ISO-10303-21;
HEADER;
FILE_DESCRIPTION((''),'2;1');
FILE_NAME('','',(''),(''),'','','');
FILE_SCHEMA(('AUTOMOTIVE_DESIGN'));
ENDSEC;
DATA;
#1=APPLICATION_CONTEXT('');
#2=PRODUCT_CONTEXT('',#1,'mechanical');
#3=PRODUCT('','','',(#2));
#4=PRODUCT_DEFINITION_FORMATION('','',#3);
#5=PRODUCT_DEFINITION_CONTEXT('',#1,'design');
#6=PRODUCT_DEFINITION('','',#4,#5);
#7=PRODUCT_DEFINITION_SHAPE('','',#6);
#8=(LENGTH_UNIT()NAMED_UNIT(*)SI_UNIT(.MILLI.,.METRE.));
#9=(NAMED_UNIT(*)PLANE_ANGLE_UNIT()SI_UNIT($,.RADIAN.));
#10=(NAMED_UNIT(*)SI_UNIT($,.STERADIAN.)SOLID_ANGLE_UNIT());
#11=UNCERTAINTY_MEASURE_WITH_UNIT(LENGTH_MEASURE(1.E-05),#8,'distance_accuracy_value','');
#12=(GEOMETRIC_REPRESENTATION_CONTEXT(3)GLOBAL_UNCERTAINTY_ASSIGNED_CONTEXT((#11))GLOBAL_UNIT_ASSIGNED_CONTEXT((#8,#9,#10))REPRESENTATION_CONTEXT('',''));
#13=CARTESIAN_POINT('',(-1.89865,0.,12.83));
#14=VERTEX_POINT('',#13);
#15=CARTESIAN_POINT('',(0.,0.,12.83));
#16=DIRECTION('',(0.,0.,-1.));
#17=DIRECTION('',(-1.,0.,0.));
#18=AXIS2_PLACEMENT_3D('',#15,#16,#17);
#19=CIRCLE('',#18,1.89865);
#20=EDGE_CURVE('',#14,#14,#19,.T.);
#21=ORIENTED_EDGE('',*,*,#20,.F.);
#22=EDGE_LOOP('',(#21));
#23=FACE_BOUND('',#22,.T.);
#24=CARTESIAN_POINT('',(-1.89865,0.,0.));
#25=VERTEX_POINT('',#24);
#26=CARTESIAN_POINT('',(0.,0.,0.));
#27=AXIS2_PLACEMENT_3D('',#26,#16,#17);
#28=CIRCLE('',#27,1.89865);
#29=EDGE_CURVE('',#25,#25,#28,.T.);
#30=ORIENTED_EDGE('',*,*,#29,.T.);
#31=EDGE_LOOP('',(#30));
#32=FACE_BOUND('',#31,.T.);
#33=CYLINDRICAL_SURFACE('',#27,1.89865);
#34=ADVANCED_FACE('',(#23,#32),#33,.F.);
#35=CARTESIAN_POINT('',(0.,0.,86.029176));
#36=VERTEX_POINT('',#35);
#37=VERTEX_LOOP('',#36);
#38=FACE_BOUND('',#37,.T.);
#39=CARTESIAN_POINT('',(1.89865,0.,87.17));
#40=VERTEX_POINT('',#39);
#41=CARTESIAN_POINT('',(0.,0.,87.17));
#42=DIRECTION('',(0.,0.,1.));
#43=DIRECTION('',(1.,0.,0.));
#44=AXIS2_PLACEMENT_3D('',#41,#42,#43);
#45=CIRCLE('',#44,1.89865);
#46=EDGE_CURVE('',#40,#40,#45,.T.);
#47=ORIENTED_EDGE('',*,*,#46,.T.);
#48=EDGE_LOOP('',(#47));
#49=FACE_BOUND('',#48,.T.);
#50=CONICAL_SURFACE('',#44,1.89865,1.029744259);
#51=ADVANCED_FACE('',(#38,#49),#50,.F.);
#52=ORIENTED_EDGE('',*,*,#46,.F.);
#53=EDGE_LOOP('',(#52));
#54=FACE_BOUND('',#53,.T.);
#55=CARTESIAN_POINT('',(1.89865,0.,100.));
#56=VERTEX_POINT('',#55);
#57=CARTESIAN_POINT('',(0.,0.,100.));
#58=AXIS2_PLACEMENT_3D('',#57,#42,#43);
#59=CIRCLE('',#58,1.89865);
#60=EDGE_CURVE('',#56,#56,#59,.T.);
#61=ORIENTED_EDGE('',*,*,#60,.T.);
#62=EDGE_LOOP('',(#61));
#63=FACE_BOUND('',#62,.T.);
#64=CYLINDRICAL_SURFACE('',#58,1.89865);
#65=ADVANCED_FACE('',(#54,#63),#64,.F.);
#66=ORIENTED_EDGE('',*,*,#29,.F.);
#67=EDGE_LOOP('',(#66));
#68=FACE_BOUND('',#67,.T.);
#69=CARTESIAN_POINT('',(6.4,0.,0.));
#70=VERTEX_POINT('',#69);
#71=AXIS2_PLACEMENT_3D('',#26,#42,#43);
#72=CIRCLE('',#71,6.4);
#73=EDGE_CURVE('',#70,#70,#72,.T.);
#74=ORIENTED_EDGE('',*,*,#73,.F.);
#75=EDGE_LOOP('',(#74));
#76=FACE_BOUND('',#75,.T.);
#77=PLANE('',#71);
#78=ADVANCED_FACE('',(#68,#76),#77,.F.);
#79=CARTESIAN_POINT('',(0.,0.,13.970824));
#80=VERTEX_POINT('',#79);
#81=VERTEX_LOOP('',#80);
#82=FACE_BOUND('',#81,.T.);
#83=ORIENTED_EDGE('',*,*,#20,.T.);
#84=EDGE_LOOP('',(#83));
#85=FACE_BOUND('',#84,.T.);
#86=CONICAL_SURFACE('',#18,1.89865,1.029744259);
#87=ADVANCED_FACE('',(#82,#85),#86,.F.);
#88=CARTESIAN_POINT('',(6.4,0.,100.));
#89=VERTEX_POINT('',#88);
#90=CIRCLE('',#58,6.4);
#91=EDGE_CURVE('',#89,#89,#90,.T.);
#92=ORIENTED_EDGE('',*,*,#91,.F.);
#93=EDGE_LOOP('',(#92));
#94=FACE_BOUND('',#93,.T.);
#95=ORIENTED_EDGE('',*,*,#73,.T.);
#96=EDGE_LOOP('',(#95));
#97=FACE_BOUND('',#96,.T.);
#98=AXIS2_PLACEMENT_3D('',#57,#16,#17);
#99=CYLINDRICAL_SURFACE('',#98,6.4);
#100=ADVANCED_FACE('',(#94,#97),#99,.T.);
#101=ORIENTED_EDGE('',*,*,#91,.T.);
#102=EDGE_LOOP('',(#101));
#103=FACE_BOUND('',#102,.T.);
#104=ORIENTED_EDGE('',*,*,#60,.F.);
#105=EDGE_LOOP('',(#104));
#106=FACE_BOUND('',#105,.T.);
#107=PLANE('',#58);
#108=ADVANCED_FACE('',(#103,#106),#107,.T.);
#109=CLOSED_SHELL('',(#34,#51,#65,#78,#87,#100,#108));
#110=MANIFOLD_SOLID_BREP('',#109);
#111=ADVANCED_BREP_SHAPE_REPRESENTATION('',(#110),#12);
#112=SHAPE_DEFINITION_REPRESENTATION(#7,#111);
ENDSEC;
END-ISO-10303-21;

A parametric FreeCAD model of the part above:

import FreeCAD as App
import Part
import Sketcher
Q = App.Units.Quantity

doc = App.newDocument("Part")
body = doc.addObject("PartDesign::Body", "Body")

sketch1 = doc.addObject("Sketcher::SketchObject", "Sketch")
body.addObject(sketch1)
sketch1.AttachmentSupport = (doc.XY_Plane, [""])
sketch1.MapMode = "FlatFace"
sketch1.addGeometry(Part.Circle(App.Vector(0, 0, 0), App.Vector(0, 0, 1), 6.4), False)
sketch1.addConstraint([
    Sketcher.Constraint("Coincident", 0, 3, -1, 1),
    Sketcher.Constraint("Diameter", 0, Q("12.8 mm")),
])
pad1 = doc.addObject("PartDesign::Pad", "Pad")
body.addObject(pad1)
pad1.Profile = sketch1
pad1.Length = 100

sketch2 = doc.addObject("Sketcher::SketchObject", "Sketch001")
body.addObject(sketch2)
sketch2.AttachmentSupport = (doc.XY_Plane, [""])
sketch2.MapMode = "FlatFace"
sketch2.addGeometry(Part.Circle(App.Vector(0, 0, 0), App.Vector(0, 0, 1), 1.89865), False)
sketch2.addConstraint([
    Sketcher.Constraint("Coincident", 0, 3, -1, 1),
    Sketcher.Constraint("Diameter", 0, Q("3.7973 mm")),
])
doc.recompute()
hole = doc.addObject("PartDesign::Hole", "Hole")
body.addObject(hole)
hole.Profile = sketch2
hole.ThreadType = "None"
hole.Diameter = 3.7973
hole.DepthType = "Dimension"
hole.Depth = 12.83
hole.DrillPoint = "Angled"
hole.DrillPointAngle = 118
hole.Reversed = True

sketch3 = doc.addObject("Sketcher::SketchObject", "Sketch002")
body.addObject(sketch3)
sketch3.AttachmentSupport = (doc.XY_Plane, [""])
sketch3.MapMode = "FlatFace"
sketch3.AttachmentOffset = App.Placement(App.Vector(0, 0, 100), App.Rotation())
sketch3.addGeometry(Part.Circle(App.Vector(0, 0, 0), App.Vector(0, 0, 1), 1.89865), False)
sketch3.addConstraint([
    Sketcher.Constraint("Coincident", 0, 3, -1, 1),
    Sketcher.Constraint("Diameter", 0, Q("3.7973 mm")),
])
doc.recompute()
hole2 = doc.addObject("PartDesign::Hole", "Hole001")
body.addObject(hole2)
hole2.Profile = sketch3
hole2.ThreadType = "None"
hole2.Diameter = 3.7973
hole2.DepthType = "Dimension"
hole2.Depth = 12.83
hole2.DrillPoint = "Angled"
hole2.DrillPointAngle = 118

doc.recompute()
